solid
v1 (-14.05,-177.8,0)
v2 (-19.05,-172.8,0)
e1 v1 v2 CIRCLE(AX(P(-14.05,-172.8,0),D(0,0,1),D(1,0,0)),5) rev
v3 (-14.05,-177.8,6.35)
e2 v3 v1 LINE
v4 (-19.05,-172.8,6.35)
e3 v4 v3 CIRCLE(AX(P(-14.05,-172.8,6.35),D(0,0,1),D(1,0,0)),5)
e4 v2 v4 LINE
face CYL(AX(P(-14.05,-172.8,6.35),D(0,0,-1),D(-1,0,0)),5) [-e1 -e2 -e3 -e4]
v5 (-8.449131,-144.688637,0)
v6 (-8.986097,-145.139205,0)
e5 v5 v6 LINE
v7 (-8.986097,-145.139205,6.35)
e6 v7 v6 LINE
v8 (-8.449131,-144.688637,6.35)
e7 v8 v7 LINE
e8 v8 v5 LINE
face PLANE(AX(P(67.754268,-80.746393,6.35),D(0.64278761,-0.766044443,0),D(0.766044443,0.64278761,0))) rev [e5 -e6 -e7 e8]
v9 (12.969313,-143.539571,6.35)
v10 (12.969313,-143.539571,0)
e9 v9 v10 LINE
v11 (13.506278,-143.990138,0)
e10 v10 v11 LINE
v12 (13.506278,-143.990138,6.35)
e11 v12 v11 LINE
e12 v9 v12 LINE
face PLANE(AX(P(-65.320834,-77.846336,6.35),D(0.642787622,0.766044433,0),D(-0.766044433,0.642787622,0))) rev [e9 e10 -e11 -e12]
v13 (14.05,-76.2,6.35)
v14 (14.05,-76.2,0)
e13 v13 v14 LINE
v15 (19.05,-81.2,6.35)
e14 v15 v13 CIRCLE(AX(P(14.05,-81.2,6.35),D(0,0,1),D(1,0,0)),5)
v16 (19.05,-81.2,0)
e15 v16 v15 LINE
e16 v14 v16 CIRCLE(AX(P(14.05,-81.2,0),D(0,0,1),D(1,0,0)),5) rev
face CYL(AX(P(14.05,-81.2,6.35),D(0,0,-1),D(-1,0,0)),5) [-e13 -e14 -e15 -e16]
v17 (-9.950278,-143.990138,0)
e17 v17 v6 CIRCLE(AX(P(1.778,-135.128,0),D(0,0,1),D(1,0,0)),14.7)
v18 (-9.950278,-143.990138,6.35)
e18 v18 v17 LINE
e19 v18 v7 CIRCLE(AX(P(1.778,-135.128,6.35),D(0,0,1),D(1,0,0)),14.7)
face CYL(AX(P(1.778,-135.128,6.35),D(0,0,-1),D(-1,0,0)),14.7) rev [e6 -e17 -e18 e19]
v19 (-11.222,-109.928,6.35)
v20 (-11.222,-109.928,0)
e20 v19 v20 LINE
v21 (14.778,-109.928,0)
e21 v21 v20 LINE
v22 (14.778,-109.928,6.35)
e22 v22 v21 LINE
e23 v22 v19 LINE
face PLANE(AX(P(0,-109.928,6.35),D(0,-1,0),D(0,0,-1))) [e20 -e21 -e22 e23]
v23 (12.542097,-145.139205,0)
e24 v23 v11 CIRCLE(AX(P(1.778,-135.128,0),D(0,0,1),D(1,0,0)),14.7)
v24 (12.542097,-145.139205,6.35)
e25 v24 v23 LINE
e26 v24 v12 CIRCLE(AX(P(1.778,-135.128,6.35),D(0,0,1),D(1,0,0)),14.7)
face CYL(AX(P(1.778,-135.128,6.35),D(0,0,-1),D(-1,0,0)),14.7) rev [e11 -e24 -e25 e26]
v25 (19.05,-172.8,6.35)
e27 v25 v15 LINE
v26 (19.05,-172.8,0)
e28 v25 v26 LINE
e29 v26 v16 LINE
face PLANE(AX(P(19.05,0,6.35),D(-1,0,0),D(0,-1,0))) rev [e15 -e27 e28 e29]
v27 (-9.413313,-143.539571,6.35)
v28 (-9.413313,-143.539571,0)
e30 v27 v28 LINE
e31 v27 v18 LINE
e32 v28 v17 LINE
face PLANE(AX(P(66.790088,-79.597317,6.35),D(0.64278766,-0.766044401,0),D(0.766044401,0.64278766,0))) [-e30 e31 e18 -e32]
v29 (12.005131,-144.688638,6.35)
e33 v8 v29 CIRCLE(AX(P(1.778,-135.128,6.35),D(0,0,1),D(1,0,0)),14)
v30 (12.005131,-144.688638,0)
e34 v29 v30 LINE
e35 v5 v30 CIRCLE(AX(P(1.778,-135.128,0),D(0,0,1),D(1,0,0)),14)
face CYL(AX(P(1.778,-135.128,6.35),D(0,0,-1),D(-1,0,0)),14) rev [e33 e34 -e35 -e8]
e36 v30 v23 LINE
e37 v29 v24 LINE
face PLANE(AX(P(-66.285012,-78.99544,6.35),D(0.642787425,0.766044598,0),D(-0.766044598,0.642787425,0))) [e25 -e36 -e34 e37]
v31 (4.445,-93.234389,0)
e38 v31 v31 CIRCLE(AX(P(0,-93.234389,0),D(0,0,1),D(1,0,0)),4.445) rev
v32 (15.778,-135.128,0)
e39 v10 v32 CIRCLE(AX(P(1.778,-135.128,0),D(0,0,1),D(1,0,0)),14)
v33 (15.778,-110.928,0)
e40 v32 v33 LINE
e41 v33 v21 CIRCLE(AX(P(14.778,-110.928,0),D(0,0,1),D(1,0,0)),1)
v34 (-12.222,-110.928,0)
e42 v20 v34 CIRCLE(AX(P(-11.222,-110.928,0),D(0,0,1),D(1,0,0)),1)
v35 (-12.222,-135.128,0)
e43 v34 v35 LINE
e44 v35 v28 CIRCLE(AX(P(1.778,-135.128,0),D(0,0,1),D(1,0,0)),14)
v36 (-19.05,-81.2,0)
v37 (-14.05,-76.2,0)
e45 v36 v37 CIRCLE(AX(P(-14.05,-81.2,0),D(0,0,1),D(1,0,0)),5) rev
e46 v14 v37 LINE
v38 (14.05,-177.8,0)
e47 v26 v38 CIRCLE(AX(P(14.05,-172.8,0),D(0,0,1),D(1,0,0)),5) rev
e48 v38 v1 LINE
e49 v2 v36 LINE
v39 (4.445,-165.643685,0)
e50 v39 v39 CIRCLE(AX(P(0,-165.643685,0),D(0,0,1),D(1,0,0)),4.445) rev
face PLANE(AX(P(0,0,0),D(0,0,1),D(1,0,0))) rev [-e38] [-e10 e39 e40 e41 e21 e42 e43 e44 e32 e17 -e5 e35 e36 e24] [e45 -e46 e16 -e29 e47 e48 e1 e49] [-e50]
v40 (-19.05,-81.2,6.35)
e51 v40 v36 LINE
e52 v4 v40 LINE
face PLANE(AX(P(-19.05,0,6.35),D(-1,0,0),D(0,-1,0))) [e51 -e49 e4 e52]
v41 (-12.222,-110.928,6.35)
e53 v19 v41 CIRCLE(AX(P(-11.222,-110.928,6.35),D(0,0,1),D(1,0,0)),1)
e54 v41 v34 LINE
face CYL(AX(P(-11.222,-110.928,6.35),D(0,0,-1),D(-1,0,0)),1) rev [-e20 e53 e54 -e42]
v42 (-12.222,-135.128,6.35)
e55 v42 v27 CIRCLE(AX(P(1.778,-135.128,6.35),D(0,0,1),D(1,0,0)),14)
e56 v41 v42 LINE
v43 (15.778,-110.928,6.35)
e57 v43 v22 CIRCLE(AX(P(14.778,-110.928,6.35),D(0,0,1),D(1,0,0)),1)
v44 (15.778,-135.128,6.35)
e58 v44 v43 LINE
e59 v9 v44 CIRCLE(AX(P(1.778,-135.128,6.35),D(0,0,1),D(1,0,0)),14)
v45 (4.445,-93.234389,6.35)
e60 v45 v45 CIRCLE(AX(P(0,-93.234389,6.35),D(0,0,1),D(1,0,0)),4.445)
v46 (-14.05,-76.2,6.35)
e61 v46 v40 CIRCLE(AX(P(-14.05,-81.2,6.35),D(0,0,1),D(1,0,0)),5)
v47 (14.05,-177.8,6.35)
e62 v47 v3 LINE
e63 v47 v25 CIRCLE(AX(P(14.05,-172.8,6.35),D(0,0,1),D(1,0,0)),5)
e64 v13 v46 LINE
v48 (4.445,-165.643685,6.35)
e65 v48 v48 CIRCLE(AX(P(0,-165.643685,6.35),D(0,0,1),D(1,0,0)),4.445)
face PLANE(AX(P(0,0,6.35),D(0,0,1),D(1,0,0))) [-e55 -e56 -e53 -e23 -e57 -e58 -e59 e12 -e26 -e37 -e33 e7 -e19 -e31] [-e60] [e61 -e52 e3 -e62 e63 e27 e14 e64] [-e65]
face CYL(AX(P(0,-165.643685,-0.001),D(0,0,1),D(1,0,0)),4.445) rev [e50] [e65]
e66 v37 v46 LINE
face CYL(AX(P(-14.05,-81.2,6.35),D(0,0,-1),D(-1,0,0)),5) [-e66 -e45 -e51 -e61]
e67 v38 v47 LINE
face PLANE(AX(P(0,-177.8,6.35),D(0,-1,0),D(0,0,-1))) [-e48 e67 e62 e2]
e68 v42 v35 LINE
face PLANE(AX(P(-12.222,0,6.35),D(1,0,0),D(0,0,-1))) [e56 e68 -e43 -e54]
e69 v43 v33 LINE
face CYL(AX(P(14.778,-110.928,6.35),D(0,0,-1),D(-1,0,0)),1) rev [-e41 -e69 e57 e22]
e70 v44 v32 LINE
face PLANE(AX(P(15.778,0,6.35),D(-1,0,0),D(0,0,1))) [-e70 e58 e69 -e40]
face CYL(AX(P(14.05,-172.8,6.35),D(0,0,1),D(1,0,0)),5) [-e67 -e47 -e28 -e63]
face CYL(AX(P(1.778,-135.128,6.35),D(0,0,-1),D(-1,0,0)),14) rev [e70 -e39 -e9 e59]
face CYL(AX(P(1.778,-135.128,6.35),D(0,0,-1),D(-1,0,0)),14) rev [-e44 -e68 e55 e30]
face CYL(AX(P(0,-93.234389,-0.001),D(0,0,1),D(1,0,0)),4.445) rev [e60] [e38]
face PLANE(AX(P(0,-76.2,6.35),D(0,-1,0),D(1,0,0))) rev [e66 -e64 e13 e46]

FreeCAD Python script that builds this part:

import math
import FreeCAD as App
import Part
import Sketcher
Q = App.Units.Quantity


def edges_at(feature, points):
    """Names of the edges that pass closest to the given points."""
    edges = feature.Shape.Edges
    near = lambda p: min(range(len(edges)), key=lambda i: edges[i].distToShape(Part.Vertex(*p))[0])
    return sorted({f"Edge{near(p) + 1}" for p in points})

doc = App.newDocument("Part")
body = doc.addObject("PartDesign::Body", "Body")

# Sketch on XY plane
sketch1 = body.newObject("Sketcher::SketchObject", "Sketch")
sketch1.AttachmentSupport = (doc.getObject("XY_Plane"), [""])
sketch1.MapMode = "FlatFace"
sketch1.addGeometry([
    Part.LineSegment(App.Vector(-19.05, -76.2, 0), App.Vector(-19.05, -177.8, 0)),  # 0
    Part.LineSegment(App.Vector(-19.05, -177.8, 0), App.Vector(19.05, -177.8, 0)),  # 1
    Part.LineSegment(App.Vector(19.05, -177.8, 0), App.Vector(19.05, -76.2, 0)),  # 2
    Part.LineSegment(App.Vector(19.05, -76.2, 0), App.Vector(-19.05, -76.2, 0)),  # 3
    Part.LineSegment(App.Vector(-12.222, -135.128, 0), App.Vector(-12.222, -110.928, 0)),  # 4
    Part.ArcOfCircle(Part.Circle(App.Vector(-11.222, -110.928, 0), App.Vector(0, 0, 1), 1), math.radians(90), math.radians(180)),  # 5
    Part.LineSegment(App.Vector(-11.222, -109.928, 0), App.Vector(14.778, -109.928, 0)),  # 6
    Part.ArcOfCircle(Part.Circle(App.Vector(14.778, -110.928, 0), App.Vector(0, 0, 1), 1), math.radians(0), math.radians(90)),  # 7
    Part.LineSegment(App.Vector(15.778, -110.928, 0), App.Vector(15.778, -135.128, 0)),  # 8
    Part.ArcOfCircle(Part.Circle(App.Vector(1.778, -135.128, 0), App.Vector(0, 0, 1), 14), math.radians(-36.929114), math.radians(0)),  # 9
    Part.LineSegment(App.Vector(12.969313, -143.539571, 0), App.Vector(13.506278, -143.990138, 0)),  # 10
    Part.ArcOfCircle(Part.Circle(App.Vector(1.778, -135.128, 0), App.Vector(0, 0, 1), 14.7), math.radians(-42.924524), math.radians(-37.075477)),  # 11
    Part.LineSegment(App.Vector(12.542097, -145.139205, 0), App.Vector(12.005131, -144.688638, 0)),  # 12
    Part.ArcOfCircle(Part.Circle(App.Vector(1.778, -135.128, 0), App.Vector(0, 0, 1), 14), math.radians(-136.929114), math.radians(-43.070888)),  # 13
    Part.LineSegment(App.Vector(-8.449131, -144.688637, 0), App.Vector(-8.986097, -145.139205, 0)),  # 14
    Part.ArcOfCircle(Part.Circle(App.Vector(1.778, -135.128, 0), App.Vector(0, 0, 1), 14.7), math.radians(-142.924523), math.radians(-137.075477)),  # 15
    Part.LineSegment(App.Vector(-9.950278, -143.990138, 0), App.Vector(-9.413313, -143.539571, 0)),  # 16
    Part.ArcOfCircle(Part.Circle(App.Vector(1.778, -135.128, 0), App.Vector(0, 0, 1), 14), math.radians(-180), math.radians(-143.070887)),  # 17
], False)
sketch1.addConstraint([
    Sketcher.Constraint("Coincident", 0, 2, 1, 1),
    Sketcher.Constraint("Coincident", 1, 2, 2, 1),
    Sketcher.Constraint("Coincident", 2, 2, 3, 1),
    Sketcher.Constraint("Coincident", 3, 2, 0, 1),
    Sketcher.Constraint("Tangent", 4, 2, 5, 2),
    Sketcher.Constraint("Tangent", 5, 1, 6, 1),
    Sketcher.Constraint("Tangent", 6, 2, 7, 2),
    Sketcher.Constraint("Tangent", 7, 1, 8, 1),
    Sketcher.Constraint("Tangent", 8, 2, 9, 2),
    Sketcher.Constraint("Coincident", 9, 1, 10, 1),
    Sketcher.Constraint("Coincident", 10, 2, 11, 2),
    Sketcher.Constraint("Coincident", 11, 1, 12, 1),
    Sketcher.Constraint("Coincident", 12, 2, 13, 2),
    Sketcher.Constraint("Coincident", 13, 1, 14, 1),
    Sketcher.Constraint("Coincident", 14, 2, 15, 2),
    Sketcher.Constraint("Coincident", 15, 1, 16, 1),
    Sketcher.Constraint("Coincident", 16, 2, 17, 2),
    Sketcher.Constraint("Tangent", 17, 1, 4, 1),
    Sketcher.Constraint("Vertical", 0),
    Sketcher.Constraint("Horizontal", 1),
    Sketcher.Constraint("Vertical", 2),
    Sketcher.Constraint("Horizontal", 3),
    Sketcher.Constraint("Vertical", 4),
    Sketcher.Constraint("Horizontal", 6),
    Sketcher.Constraint("Vertical", 8),
    Sketcher.Constraint("Coincident", 11, 3, 9, 3),
    Sketcher.Constraint("Coincident", 13, 3, 9, 3),
    Sketcher.Constraint("Coincident", 15, 3, 9, 3),
    Sketcher.Constraint("Coincident", 17, 3, 9, 3),
    Sketcher.Constraint("Equal", 5, 7),
    Sketcher.Constraint("Equal", 9, 13),
    Sketcher.Constraint("Equal", 11, 15),
    Sketcher.Constraint("Equal", 13, 17),
    Sketcher.Constraint("Parallel", 10, 12),
    Sketcher.Constraint("Parallel", 14, 16),
    Sketcher.Constraint("Horizontal", 12, 2, 13, 1),
    Sketcher.Constraint("Horizontal", 11, 1, 14, 2),
    Sketcher.Constraint("Horizontal", 10, 2, 15, 1),
    Sketcher.Constraint("Equal", 10, 12),
    Sketcher.Constraint("Radius", 5, 1.0),
    Sketcher.Constraint("Radius", 9, 14.0),
    Sketcher.Constraint("Radius", 11, 14.7),
    Sketcher.Constraint("Angle", 10, Q("-40.000001 deg")),
    Sketcher.Constraint("DistanceX", 1, 1, 1, 2, 38.1),
    Sketcher.Constraint("DistanceY", 0, 2, 0, 1, 101.6),
    Sketcher.Constraint("DistanceY", 4, 1, 4, 2, 24.2),
    Sketcher.Constraint("DistanceY", 0, 2, -1, 1, 177.8),
    Sketcher.Constraint("DistanceX", 0, 2, -1, 1, 19.05),
    Sketcher.Constraint("DistanceX", 5, 3, -1, 1, 11.222),
    Sketcher.Constraint("DistanceY", 5, 3, -1, 1, 110.928),
    Sketcher.Constraint("DistanceY", 12, 2, 10, 2, 0.698499),
])
pad1 = body.newObject("PartDesign::Pad", "Pad")
pad1.Profile = sketch1
pad1.Length = 6.35
doc.recompute()

fillet = body.newObject("PartDesign::Fillet", "Fillet")
fillet.Base = (pad1, edges_at(pad1, [(-19.05, -76.2, 3.175)]))
fillet.Radius = 5
doc.recompute()

fillet2 = body.newObject("PartDesign::Fillet", "Fillet001")
fillet2.Base = (fillet, edges_at(fillet, [(19.05, -76.2, 3.175)]))
fillet2.Radius = 5
doc.recompute()

fillet3 = body.newObject("PartDesign::Fillet", "Fillet002")
fillet3.Base = (fillet2, edges_at(fillet2, [(19.05, -177.8, 3.175)]))
fillet3.Radius = 5
doc.recompute()

fillet4 = body.newObject("PartDesign::Fillet", "Fillet003")
fillet4.Base = (fillet3, edges_at(fillet3, [(-19.05, -177.8, 3.175)]))
fillet4.Radius = 5

# Sketch on XY plane
sketch2 = body.newObject("Sketcher::SketchObject", "Sketch001")
sketch2.AttachmentSupport = (doc.getObject("XY_Plane"), [""])
sketch2.MapMode = "FlatFace"
sketch2.AttachmentOffset = App.Placement(App.Vector(0, 0, 6.35), App.Rotation())
sketch2.addGeometry(Part.Circle(App.Vector(0, -93.234389, 0), App.Vector(0, 0, 1), 4.445), False)
sketch2.addConstraint([
    Sketcher.Constraint("PointOnObject", 0, 3, -2),
    Sketcher.Constraint("Diameter", 0, 8.89),
    Sketcher.Constraint("DistanceY", 0, 3, -1, 1, 93.234389),
])
pocket1 = body.newObject("PartDesign::Pocket", "Pocket")
pocket1.Profile = sketch2
pocket1.Type = "UpToFirst"

# Sketch on XY plane
sketch3 = body.newObject("Sketcher::SketchObject", "Sketch002")
sketch3.AttachmentSupport = (doc.getObject("XY_Plane"), [""])
sketch3.MapMode = "FlatFace"
sketch3.AttachmentOffset = App.Placement(App.Vector(0, 0, 6.35), App.Rotation())
sketch3.addGeometry(Part.Circle(App.Vector(0, -165.643685, 0), App.Vector(0, 0, 1), 4.445), False)
sketch3.addConstraint([
    Sketcher.Constraint("PointOnObject", 0, 3, -2),
    Sketcher.Constraint("Diameter", 0, 8.89),
    Sketcher.Constraint("DistanceY", 0, 3, -1, 1, 165.643685),
])
pocket2 = body.newObject("PartDesign::Pocket", "Pocket001")
pocket2.Profile = sketch3
pocket2.Type = "UpToFirst"

doc.recompute()
